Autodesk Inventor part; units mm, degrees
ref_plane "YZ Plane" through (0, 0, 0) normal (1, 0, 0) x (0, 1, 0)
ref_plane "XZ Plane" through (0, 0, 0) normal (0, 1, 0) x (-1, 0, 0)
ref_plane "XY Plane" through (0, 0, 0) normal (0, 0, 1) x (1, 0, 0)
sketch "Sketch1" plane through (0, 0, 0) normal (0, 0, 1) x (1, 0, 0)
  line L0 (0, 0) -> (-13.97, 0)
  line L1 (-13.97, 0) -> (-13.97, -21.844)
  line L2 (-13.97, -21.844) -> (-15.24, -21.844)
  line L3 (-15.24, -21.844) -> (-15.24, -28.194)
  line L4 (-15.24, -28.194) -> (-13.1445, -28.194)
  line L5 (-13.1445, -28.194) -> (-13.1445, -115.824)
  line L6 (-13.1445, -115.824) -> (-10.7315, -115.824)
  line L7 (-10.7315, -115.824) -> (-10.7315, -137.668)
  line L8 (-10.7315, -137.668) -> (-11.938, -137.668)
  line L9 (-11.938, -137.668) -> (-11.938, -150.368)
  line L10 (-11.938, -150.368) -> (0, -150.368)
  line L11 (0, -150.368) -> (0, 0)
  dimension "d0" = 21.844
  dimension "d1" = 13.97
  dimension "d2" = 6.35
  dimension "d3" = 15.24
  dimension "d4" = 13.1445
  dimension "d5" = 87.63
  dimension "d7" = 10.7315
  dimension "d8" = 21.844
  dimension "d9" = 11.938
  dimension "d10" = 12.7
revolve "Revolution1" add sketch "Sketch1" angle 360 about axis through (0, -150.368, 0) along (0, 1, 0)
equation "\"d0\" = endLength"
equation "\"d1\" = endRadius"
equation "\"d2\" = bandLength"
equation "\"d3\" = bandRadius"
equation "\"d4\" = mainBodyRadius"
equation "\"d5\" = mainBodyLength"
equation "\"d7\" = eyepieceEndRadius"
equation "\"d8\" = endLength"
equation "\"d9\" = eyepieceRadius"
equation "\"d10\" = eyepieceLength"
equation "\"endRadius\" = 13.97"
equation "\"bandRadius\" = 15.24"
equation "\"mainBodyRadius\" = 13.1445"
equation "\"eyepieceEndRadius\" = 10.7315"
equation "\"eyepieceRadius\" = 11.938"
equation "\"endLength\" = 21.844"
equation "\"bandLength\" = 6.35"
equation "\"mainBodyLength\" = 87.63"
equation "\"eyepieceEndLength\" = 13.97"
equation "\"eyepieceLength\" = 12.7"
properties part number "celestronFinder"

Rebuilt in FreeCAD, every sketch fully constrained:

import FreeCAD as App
import Part
import Sketcher
Q = App.Units.Quantity

doc = App.newDocument("Part")
body = doc.addObject("PartDesign::Body", "Body")

# Sketch on XY plane
sketch1 = doc.addObject("Sketcher::SketchObject", "Sketch")
body.addObject(sketch1)
sketch1.AttachmentSupport = (doc.XY_Plane, [""])
sketch1.MapMode = "FlatFace"
sketch1.addGeometry([
    Part.LineSegment(App.Vector(0, -150.368, 0), App.Vector(0, 0, 0)),  # 0
    Part.LineSegment(App.Vector(0, 0, 0), App.Vector(-13.97, 0, 0)),  # 1
    Part.LineSegment(App.Vector(-13.97, 0, 0), App.Vector(-13.97, -21.844, 0)),  # 2
    Part.LineSegment(App.Vector(-13.97, -21.844, 0), App.Vector(-15.24, -21.844, 0)),  # 3
    Part.LineSegment(App.Vector(-15.24, -21.844, 0), App.Vector(-15.24, -28.194, 0)),  # 4
    Part.LineSegment(App.Vector(-15.24, -28.194, 0), App.Vector(-13.1445, -28.194, 0)),  # 5
    Part.LineSegment(App.Vector(-13.1445, -28.194, 0), App.Vector(-13.1445, -115.824, 0)),  # 6
    Part.LineSegment(App.Vector(-13.1445, -115.824, 0), App.Vector(-10.7315, -115.824, 0)),  # 7
    Part.LineSegment(App.Vector(-10.7315, -115.824, 0), App.Vector(-10.7315, -137.668, 0)),  # 8
    Part.LineSegment(App.Vector(-10.7315, -137.668, 0), App.Vector(-11.938, -137.668, 0)),  # 9
    Part.LineSegment(App.Vector(-11.938, -137.668, 0), App.Vector(-11.938, -150.368, 0)),  # 10
    Part.LineSegment(App.Vector(-11.938, -150.368, 0), App.Vector(0, -150.368, 0)),  # 11
], False)
sketch1.addConstraint([
    Sketcher.Constraint("Coincident", 0, 2, 1, 1),
    Sketcher.Constraint("Coincident", 1, 2, 2, 1),
    Sketcher.Constraint("Coincident", 2, 2, 3, 1),
    Sketcher.Constraint("Coincident", 3, 2, 4, 1),
    Sketcher.Constraint("Coincident", 4, 2, 5, 1),
    Sketcher.Constraint("Coincident", 5, 2, 6, 1),
    Sketcher.Constraint("Coincident", 6, 2, 7, 1),
    Sketcher.Constraint("Coincident", 7, 2, 8, 1),
    Sketcher.Constraint("Coincident", 8, 2, 9, 1),
    Sketcher.Constraint("Coincident", 9, 2, 10, 1),
    Sketcher.Constraint("Coincident", 10, 2, 11, 1),
    Sketcher.Constraint("Coincident", 11, 2, 0, 1),
    Sketcher.Constraint("Vertical", 0),
    Sketcher.Constraint("Horizontal", 1),
    Sketcher.Constraint("Vertical", 2),
    Sketcher.Constraint("Horizontal", 3),
    Sketcher.Constraint("Vertical", 4),
    Sketcher.Constraint("Horizontal", 5),
    Sketcher.Constraint("Vertical", 6),
    Sketcher.Constraint("Horizontal", 7),
    Sketcher.Constraint("Vertical", 8),
    Sketcher.Constraint("Horizontal", 9),
    Sketcher.Constraint("Vertical", 10),
    Sketcher.Constraint("Horizontal", 11),
    Sketcher.Constraint("Coincident", 0, 2, -1, 1),
    Sketcher.Constraint("Equal", 2, 8),
    Sketcher.Constraint("DistanceY", 10, 2, 10, 1, Q("0.5 in")),
    Sketcher.Constraint("DistanceX", 1, 2, 1, 1, Q("0.55 in")),
    Sketcher.Constraint("DistanceX", 11, 1, 11, 2, Q("0.47 in")),
    Sketcher.Constraint("DistanceY", 2, 2, 2, 1, Q("0.86 in")),
    Sketcher.Constraint("DistanceY", 4, 2, 4, 1, Q("0.25 in")),
    Sketcher.Constraint("DistanceY", 6, 2, 6, 1, Q("3.45 in")),
    Sketcher.Constraint("DistanceX", 3, 2, -1, 1, Q("0.6 in")),
    Sketcher.Constraint("DistanceX", 5, 2, -1, 1, Q("0.5175 in")),
    Sketcher.Constraint("DistanceX", 7, 2, -1, 1, Q("0.4225 in")),
])
revolution = doc.addObject("PartDesign::Revolution", "Revolution")
body.addObject(revolution)
revolution.Profile = sketch1
revolution.ReferenceAxis = (sketch1, ["V_Axis"])
revolution.Angle = 360

doc.recompute()
